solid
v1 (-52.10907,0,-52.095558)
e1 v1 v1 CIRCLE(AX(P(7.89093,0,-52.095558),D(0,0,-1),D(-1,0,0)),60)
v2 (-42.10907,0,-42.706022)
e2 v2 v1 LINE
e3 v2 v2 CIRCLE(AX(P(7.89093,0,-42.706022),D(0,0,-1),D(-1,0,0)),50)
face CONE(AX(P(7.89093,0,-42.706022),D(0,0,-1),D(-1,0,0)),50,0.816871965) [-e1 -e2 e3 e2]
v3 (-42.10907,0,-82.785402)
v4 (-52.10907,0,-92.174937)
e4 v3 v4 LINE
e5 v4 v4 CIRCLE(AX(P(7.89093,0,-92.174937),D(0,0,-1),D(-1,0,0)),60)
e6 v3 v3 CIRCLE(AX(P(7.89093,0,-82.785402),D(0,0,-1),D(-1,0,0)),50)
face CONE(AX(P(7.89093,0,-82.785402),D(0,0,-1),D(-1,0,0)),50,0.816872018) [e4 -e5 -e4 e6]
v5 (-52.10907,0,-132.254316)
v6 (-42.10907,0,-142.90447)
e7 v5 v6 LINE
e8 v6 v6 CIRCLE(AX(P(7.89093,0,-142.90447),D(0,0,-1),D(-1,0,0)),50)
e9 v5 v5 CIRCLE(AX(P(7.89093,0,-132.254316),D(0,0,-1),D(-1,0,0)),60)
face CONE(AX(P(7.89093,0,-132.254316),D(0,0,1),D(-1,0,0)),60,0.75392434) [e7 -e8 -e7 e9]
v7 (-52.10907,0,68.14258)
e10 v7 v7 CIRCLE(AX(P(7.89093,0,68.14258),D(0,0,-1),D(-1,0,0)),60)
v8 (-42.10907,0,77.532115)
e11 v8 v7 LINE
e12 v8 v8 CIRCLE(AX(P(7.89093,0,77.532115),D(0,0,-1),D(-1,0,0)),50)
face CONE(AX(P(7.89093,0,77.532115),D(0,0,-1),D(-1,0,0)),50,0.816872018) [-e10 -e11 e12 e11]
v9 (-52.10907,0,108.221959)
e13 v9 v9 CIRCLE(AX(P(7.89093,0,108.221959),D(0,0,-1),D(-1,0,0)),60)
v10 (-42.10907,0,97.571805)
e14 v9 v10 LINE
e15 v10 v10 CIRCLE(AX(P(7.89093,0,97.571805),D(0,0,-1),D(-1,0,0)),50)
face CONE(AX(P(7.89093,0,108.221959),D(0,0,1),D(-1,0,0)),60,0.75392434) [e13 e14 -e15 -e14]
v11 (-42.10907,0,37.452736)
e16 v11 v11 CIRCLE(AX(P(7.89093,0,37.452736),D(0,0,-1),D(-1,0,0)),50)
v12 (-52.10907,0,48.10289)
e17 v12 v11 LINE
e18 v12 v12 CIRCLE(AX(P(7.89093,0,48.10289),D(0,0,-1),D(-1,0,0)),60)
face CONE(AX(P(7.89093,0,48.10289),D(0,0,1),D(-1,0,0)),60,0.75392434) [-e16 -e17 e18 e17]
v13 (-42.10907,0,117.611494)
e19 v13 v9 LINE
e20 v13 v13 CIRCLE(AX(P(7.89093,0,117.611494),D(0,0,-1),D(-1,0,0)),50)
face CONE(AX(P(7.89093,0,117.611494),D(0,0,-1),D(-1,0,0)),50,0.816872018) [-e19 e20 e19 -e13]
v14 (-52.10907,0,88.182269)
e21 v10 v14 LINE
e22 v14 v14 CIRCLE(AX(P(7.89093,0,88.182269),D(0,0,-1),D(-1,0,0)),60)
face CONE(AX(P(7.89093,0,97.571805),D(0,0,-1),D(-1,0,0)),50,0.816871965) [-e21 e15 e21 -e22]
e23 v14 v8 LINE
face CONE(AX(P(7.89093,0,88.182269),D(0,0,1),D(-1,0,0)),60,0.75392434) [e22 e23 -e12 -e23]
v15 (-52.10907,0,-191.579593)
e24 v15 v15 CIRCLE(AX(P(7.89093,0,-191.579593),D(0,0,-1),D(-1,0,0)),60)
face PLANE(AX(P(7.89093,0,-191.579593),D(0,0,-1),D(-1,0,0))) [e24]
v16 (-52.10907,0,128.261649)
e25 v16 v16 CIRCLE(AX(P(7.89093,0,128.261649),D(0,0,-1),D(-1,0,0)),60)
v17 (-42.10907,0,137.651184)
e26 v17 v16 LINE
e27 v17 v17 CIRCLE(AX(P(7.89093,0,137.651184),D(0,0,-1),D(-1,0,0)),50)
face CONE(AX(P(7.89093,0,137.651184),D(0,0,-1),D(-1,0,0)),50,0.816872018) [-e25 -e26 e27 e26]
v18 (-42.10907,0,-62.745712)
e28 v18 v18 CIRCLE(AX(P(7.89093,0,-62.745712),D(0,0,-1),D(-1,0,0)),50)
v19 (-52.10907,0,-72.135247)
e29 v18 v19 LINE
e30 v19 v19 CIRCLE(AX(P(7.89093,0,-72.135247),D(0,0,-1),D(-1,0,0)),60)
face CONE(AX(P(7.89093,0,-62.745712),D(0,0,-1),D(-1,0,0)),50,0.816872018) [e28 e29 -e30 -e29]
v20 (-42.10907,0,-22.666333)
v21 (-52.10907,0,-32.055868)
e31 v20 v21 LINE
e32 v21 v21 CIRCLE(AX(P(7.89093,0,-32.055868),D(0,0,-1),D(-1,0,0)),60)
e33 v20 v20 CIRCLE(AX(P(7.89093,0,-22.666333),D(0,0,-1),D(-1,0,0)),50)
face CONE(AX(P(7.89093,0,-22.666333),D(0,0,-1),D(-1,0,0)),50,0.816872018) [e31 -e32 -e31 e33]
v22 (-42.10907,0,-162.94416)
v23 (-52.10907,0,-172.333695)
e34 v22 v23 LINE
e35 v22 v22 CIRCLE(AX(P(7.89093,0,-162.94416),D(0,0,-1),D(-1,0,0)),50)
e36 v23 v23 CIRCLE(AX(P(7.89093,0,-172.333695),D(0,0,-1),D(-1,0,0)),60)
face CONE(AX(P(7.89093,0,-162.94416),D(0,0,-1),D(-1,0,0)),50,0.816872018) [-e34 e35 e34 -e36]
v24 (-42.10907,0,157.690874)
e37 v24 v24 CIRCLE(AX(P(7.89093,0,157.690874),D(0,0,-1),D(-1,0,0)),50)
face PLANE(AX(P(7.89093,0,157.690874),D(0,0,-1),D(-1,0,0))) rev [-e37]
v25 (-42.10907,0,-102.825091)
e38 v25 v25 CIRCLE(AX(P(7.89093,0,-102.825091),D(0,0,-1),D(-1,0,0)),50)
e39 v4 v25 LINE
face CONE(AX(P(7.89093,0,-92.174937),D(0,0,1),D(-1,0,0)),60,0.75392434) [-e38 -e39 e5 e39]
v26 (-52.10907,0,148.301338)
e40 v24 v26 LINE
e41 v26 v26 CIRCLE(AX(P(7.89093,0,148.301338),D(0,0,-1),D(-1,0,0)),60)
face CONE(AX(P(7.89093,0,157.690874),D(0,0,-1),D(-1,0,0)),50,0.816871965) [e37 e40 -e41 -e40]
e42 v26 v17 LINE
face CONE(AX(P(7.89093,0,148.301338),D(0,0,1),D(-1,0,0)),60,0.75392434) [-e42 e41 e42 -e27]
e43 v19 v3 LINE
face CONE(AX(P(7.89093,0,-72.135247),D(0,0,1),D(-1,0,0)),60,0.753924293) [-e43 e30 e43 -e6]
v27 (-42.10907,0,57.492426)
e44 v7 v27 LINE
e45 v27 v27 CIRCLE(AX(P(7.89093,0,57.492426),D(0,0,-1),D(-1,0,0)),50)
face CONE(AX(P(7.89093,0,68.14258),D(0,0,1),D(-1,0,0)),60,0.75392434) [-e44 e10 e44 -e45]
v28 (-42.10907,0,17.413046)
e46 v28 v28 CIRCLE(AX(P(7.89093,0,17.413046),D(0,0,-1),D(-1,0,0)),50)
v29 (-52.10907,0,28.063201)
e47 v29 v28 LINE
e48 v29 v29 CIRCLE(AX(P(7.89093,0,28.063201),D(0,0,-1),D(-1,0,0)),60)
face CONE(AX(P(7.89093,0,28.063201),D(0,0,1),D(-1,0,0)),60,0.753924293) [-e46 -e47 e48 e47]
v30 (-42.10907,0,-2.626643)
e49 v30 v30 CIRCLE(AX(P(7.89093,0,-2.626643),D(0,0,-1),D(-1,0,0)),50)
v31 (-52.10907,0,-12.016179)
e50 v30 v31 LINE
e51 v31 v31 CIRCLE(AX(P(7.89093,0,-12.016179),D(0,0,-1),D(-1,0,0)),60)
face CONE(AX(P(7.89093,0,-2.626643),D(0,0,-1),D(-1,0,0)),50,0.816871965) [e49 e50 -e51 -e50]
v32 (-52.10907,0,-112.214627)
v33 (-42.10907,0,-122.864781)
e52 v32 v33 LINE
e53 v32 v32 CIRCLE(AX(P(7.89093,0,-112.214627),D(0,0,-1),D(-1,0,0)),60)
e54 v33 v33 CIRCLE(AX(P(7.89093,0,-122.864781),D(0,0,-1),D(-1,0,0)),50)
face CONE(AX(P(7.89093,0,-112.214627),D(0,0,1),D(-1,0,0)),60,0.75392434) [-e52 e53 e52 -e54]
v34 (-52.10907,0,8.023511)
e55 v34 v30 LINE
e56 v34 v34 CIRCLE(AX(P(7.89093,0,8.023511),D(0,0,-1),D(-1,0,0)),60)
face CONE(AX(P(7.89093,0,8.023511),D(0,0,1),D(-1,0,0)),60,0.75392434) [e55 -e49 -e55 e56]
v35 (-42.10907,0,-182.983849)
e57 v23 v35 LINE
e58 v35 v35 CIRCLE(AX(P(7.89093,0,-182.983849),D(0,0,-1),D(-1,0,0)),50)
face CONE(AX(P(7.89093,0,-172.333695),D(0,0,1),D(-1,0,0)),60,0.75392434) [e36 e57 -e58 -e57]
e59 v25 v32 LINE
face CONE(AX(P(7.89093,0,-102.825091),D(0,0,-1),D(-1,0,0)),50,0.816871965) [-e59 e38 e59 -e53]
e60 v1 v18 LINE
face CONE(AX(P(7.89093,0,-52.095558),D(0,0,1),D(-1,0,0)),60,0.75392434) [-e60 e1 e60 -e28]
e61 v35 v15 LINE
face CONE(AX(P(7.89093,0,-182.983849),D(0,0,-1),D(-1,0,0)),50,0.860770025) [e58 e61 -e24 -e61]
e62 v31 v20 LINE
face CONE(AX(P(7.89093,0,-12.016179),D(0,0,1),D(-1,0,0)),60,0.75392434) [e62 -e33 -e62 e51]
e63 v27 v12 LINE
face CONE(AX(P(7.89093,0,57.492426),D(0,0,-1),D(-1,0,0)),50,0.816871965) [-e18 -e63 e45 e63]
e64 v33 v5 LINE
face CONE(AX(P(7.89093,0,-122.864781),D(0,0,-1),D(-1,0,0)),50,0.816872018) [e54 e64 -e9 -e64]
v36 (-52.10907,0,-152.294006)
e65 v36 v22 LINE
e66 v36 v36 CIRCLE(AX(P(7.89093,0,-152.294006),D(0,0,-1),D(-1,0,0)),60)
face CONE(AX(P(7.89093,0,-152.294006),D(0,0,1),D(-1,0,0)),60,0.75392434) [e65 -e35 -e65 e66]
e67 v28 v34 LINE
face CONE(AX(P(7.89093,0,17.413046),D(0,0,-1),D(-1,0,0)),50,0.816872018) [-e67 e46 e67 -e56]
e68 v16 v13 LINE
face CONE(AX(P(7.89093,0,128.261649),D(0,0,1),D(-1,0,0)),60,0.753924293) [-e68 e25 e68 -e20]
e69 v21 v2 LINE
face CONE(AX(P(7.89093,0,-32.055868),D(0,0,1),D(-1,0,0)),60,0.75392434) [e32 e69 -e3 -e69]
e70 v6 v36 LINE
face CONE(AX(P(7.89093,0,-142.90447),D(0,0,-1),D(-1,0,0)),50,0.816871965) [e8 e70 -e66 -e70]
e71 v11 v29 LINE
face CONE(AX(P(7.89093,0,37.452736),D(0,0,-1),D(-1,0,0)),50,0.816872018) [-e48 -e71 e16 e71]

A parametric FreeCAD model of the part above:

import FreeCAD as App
import Part
import Sketcher
from FreeCAD import Vector


def add_polygon(sketch, points):
    """Adds a closed chain of lines whose ends are joined by coincident constraints."""
    first, n = sketch.GeometryCount, len(points)
    for a, b in zip(points, points[1:] + points[:1]):
        sketch.addGeometry(Part.LineSegment(App.Vector(*a, 0), App.Vector(*b, 0)), False)
    for i in range(n):
        sketch.addConstraint(Sketcher.Constraint("Coincident", first + i, 2, first + (i + 1) % n, 1))

doc = App.newDocument("Part")
body = doc.addObject("PartDesign::Body", "Body")

sketch1 = body.newObject("Sketcher::SketchObject", "Sketch")
sketch1.AttachmentSupport = (doc.getObject("XZ_Plane"), [""])
sketch1.MapMode = "FlatFace"
add_polygon(sketch1, [(8, 158), (-42, 158), (-52, 148), (-42, 138), (-52, 128), (-42, 118), (-52, 108), (-42, 98), (-52, 88), (-42, 78), (-52, 68), (-42, 57), (-52, 48), (-42, 37), (-52, 28), (-42, 17), (-52, 8), (-42, -3), (-52, -12), (-42, -23), (-52, -32), (-42, -43), (-52, -52), (-42, -63), (-52, -72), (-42, -83), (-52, -92), (-42, -103), (-52, -112), (-42, -123), (-52, -132), (-42, -143), (-52, -152), (-42, -163), (-52, -172), (-42, -183), (-52, -192), (8, -192)])
sketch1.addGeometry(Part.LineSegment(Vector(8, 158, 0), Vector(8, -192, 0)), True)
sketch1.addConstraint([
    Sketcher.Constraint("Horizontal", 0),
    Sketcher.Constraint("Horizontal", 36),
    Sketcher.Constraint("Vertical", 37),
    Sketcher.Constraint("Vertical", 38),
    Sketcher.Constraint("Coincident", 38, 1, 37, 2),
    Sketcher.Constraint("Perpendicular", 1, 2),
    Sketcher.Constraint("Perpendicular", 2, 3),
    Sketcher.Constraint("Perpendicular", 3, 4),
    Sketcher.Constraint("Perpendicular", 4, 5),
    Sketcher.Constraint("Perpendicular", 5, 6),
    Sketcher.Constraint("Perpendicular", 6, 7),
    Sketcher.Constraint("Perpendicular", 7, 8),
    Sketcher.Constraint("Perpendicular", 8, 9),
    Sketcher.Constraint("Perpendicular", 9, 10),
    Sketcher.Constraint("Perpendicular", 10, 11),
    Sketcher.Constraint("Perpendicular", 11, 12),
    Sketcher.Constraint("Perpendicular", 12, 13),
    Sketcher.Constraint("Perpendicular", 13, 14),
    Sketcher.Constraint("Perpendicular", 14, 15),
    Sketcher.Constraint("Perpendicular", 15, 16),
    Sketcher.Constraint("Perpendicular", 16, 17),
    Sketcher.Constraint("Perpendicular", 17, 18),
    Sketcher.Constraint("Perpendicular", 18, 19),
    Sketcher.Constraint("Perpendicular", 19, 20),
    Sketcher.Constraint("Perpendicular", 20, 21),
    Sketcher.Constraint("Perpendicular", 21, 22),
    Sketcher.Constraint("Perpendicular", 22, 23),
    Sketcher.Constraint("Perpendicular", 23, 24),
    Sketcher.Constraint("Perpendicular", 24, 25),
    Sketcher.Constraint("Perpendicular", 25, 26),
    Sketcher.Constraint("Perpendicular", 26, 27),
    Sketcher.Constraint("Perpendicular", 27, 28),
    Sketcher.Constraint("Perpendicular", 28, 29),
    Sketcher.Constraint("Perpendicular", 29, 30),
    Sketcher.Constraint("Perpendicular", 30, 31),
    Sketcher.Constraint("Perpendicular", 31, 32),
    Sketcher.Constraint("Perpendicular", 32, 33),
    Sketcher.Constraint("Perpendicular", 33, 34),
    Sketcher.Constraint("Horizontal", 35, 2, 38, 2),
    Sketcher.Constraint("Vertical", 0, 2, 2, 2),
    Sketcher.Constraint("Vertical", 1, 2, 3, 2),
    Sketcher.Constraint("Vertical", 2, 2, 4, 2),
    Sketcher.Constraint("Vertical", 3, 2, 5, 2),
    Sketcher.Constraint("Vertical", 4, 2, 6, 2),
    Sketcher.Constraint("Vertical", 5, 2, 7, 2),
    Sketcher.Constraint("Vertical", 6, 2, 8, 2),
    Sketcher.Constraint("Vertical", 7, 2, 9, 2),
    Sketcher.Constraint("Vertical", 8, 2, 10, 2),
    Sketcher.Constraint("Vertical", 9, 2, 11, 2),
    Sketcher.Constraint("Vertical", 10, 2, 12, 2),
    Sketcher.Constraint("Vertical", 11, 2, 13, 2),
    Sketcher.Constraint("Vertical", 12, 2, 14, 2),
    Sketcher.Constraint("Vertical", 13, 2, 15, 2),
    Sketcher.Constraint("Vertical", 14, 2, 16, 2),
    Sketcher.Constraint("Vertical", 15, 2, 17, 2),
    Sketcher.Constraint("Vertical", 16, 2, 18, 2),
    Sketcher.Constraint("Vertical", 17, 2, 19, 2),
    Sketcher.Constraint("Vertical", 18, 2, 20, 2),
    Sketcher.Constraint("Vertical", 19, 2, 21, 2),
    Sketcher.Constraint("Vertical", 20, 2, 22, 2),
    Sketcher.Constraint("Vertical", 21, 2, 23, 2),
    Sketcher.Constraint("Vertical", 22, 2, 24, 2),
    Sketcher.Constraint("Vertical", 23, 2, 25, 2),
    Sketcher.Constraint("Vertical", 24, 2, 26, 2),
    Sketcher.Constraint("Vertical", 25, 2, 27, 2),
    Sketcher.Constraint("Vertical", 26, 2, 28, 2),
    Sketcher.Constraint("Vertical", 27, 2, 29, 2),
    Sketcher.Constraint("Vertical", 28, 2, 30, 2),
    Sketcher.Constraint("Vertical", 29, 2, 31, 2),
    Sketcher.Constraint("Vertical", 30, 2, 32, 2),
    Sketcher.Constraint("Vertical", 31, 2, 33, 2),
    Sketcher.Constraint("Vertical", 32, 2, 34, 2),
    Sketcher.Constraint("Vertical", 33, 2, 35, 2),
    Sketcher.Constraint("DistanceX", 0, 2, 0, 1, 50.0),
    Sketcher.Constraint("DistanceX", 36, 1, 36, 2, 60.0),
    Sketcher.Constraint("Distance", 2, 14.609099),
    Sketcher.Constraint("DistanceY", -1, 1, 13, 2, 28.063201),
    Sketcher.Constraint("DistanceY", 37, 1, 37, 2, 349.270467),
    Sketcher.Constraint("DistanceX", 0, 2, -1, 1, 42.10907),
])
revolution = body.newObject("PartDesign::Revolution", "Revolution")
revolution.Profile = sketch1
revolution.ReferenceAxis = (sketch1, ["Axis0"])
revolution.Angle = 360

doc.recompute()
